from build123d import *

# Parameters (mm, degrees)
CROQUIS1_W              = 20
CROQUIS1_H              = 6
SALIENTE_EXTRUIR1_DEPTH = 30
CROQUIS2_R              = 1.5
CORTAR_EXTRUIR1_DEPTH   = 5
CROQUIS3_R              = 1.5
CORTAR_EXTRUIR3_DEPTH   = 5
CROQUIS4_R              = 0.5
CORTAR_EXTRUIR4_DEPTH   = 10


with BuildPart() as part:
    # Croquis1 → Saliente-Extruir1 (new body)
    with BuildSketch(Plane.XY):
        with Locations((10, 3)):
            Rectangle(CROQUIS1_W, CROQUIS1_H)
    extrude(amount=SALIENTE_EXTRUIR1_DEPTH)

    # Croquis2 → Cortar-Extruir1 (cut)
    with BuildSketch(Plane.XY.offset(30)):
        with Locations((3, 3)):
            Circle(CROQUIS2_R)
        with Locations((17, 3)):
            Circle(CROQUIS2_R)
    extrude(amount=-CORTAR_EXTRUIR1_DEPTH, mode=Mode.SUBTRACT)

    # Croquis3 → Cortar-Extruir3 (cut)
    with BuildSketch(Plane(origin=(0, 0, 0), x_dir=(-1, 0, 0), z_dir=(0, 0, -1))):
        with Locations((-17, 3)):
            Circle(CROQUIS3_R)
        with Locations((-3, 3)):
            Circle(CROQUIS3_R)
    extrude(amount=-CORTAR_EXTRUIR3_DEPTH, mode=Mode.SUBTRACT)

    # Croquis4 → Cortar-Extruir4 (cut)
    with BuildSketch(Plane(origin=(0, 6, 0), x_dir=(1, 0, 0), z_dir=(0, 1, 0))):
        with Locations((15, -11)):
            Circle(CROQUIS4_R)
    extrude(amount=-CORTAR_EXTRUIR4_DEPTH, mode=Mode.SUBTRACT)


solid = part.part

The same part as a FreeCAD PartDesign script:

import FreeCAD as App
import Part
import Sketcher

doc = App.newDocument("Part")
body = doc.addObject("PartDesign::Body", "Body")

sketch1 = body.newObject("Sketcher::SketchObject", "Sketch")
sketch1.AttachmentSupport = (doc.getObject("XY_Plane"), [""])
sketch1.MapMode = "FlatFace"
sketch1.addGeometry([
    Part.LineSegment(App.Vector(0, 6, 0), App.Vector(0, 0, 0)),
    Part.LineSegment(App.Vector(0, 0, 0), App.Vector(20, 0, 0)),
    Part.LineSegment(App.Vector(20, 0, 0), App.Vector(20, 6, 0)),
    Part.LineSegment(App.Vector(20, 6, 0), App.Vector(0, 6, 0)),
], False)
sketch1.addConstraint([
    Sketcher.Constraint("Coincident", 0, 2, 1, 1),
    Sketcher.Constraint("Coincident", 1, 2, 2, 1),
    Sketcher.Constraint("Coincident", 2, 2, 3, 1),
    Sketcher.Constraint("Coincident", 3, 2, 0, 1),
    Sketcher.Constraint("Vertical", 0),
    Sketcher.Constraint("Horizontal", 1),
    Sketcher.Constraint("Vertical", 2),
    Sketcher.Constraint("Horizontal", 3),
    Sketcher.Constraint("Coincident", 0, 2, -1, 1),
    Sketcher.Constraint("DistanceX", 1, 1, 1, 2, 20.0),
    Sketcher.Constraint("DistanceY", 0, 2, 0, 1, 6.0),
])
pad1 = body.newObject("PartDesign::Pad", "Pad")
pad1.Profile = sketch1
pad1.Length = 30

sketch2 = body.newObject("Sketcher::SketchObject", "Sketch001")
sketch2.AttachmentSupport = (doc.getObject("XY_Plane"), [""])
sketch2.MapMode = "FlatFace"
sketch2.AttachmentOffset = App.Placement(App.Vector(0, 0, 30), App.Rotation())
sketch2.addGeometry([
    Part.Circle(App.Vector(3, 3, 0), App.Vector(0, 0, 1), 1.5),
    Part.Circle(App.Vector(17, 3, 0), App.Vector(0, 0, 1), 1.5),
], False)
sketch2.addConstraint([
    Sketcher.Constraint("Equal", 0, 1),
    Sketcher.Constraint("Horizontal", 0, 3, 1, 3),
    Sketcher.Constraint("Diameter", 0, 3.0),
    Sketcher.Constraint("DistanceX", -1, 1, 0, 3, 3.0),
    Sketcher.Constraint("DistanceY", -1, 1, 0, 3, 3.0),
    Sketcher.Constraint("DistanceX", -1, 1, 1, 3, 17.0),
])
pocket1 = body.newObject("PartDesign::Pocket", "Pocket")
pocket1.Profile = sketch2
pocket1.Length = 5

sketch3 = body.newObject("Sketcher::SketchObject", "Sketch002")
sketch3.AttachmentSupport = (doc.getObject("XY_Plane"), [""])
sketch3.MapMode = "FlatFace"
sketch3.addGeometry([
    Part.Circle(App.Vector(17, 3, 0), App.Vector(0, 0, 1), 1.5),
    Part.Circle(App.Vector(3, 3, 0), App.Vector(0, 0, 1), 1.5),
], False)
sketch3.addConstraint([
    Sketcher.Constraint("Equal", 0, 1),
    Sketcher.Constraint("Horizontal", 0, 3, 1, 3),
    Sketcher.Constraint("Diameter", 0, 3.0),
    Sketcher.Constraint("DistanceX", -1, 1, 0, 3, 17.0),
    Sketcher.Constraint("DistanceY", -1, 1, 0, 3, 3.0),
    Sketcher.Constraint("DistanceX", -1, 1, 1, 3, 3.0),
])
pocket2 = body.newObject("PartDesign::Pocket", "Pocket001")
pocket2.Profile = sketch3
pocket2.Length = 5
pocket2.Reversed = True

sketch4 = body.newObject("Sketcher::SketchObject", "Sketch003")
sketch4.AttachmentSupport = (doc.getObject("XZ_Plane"), [""])
sketch4.MapMode = "FlatFace"
sketch4.AttachmentOffset = App.Placement(App.Vector(0, 0, -6), App.Rotation())
sketch4.addGeometry(Part.Circle(App.Vector(15, 11, 0), App.Vector(0, 0, 1), 0.5), False)
sketch4.addConstraint([
    Sketcher.Constraint("Diameter", 0, 1.0),
    Sketcher.Constraint("DistanceX", -1, 1, 0, 3, 15.0),
    Sketcher.Constraint("DistanceY", -1, 1, 0, 3, 11.0),
])
pocket3 = body.newObject("PartDesign::Pocket", "Pocket002")
pocket3.Profile = sketch4
pocket3.Length = 10
pocket3.Reversed = True

doc.recompute()
